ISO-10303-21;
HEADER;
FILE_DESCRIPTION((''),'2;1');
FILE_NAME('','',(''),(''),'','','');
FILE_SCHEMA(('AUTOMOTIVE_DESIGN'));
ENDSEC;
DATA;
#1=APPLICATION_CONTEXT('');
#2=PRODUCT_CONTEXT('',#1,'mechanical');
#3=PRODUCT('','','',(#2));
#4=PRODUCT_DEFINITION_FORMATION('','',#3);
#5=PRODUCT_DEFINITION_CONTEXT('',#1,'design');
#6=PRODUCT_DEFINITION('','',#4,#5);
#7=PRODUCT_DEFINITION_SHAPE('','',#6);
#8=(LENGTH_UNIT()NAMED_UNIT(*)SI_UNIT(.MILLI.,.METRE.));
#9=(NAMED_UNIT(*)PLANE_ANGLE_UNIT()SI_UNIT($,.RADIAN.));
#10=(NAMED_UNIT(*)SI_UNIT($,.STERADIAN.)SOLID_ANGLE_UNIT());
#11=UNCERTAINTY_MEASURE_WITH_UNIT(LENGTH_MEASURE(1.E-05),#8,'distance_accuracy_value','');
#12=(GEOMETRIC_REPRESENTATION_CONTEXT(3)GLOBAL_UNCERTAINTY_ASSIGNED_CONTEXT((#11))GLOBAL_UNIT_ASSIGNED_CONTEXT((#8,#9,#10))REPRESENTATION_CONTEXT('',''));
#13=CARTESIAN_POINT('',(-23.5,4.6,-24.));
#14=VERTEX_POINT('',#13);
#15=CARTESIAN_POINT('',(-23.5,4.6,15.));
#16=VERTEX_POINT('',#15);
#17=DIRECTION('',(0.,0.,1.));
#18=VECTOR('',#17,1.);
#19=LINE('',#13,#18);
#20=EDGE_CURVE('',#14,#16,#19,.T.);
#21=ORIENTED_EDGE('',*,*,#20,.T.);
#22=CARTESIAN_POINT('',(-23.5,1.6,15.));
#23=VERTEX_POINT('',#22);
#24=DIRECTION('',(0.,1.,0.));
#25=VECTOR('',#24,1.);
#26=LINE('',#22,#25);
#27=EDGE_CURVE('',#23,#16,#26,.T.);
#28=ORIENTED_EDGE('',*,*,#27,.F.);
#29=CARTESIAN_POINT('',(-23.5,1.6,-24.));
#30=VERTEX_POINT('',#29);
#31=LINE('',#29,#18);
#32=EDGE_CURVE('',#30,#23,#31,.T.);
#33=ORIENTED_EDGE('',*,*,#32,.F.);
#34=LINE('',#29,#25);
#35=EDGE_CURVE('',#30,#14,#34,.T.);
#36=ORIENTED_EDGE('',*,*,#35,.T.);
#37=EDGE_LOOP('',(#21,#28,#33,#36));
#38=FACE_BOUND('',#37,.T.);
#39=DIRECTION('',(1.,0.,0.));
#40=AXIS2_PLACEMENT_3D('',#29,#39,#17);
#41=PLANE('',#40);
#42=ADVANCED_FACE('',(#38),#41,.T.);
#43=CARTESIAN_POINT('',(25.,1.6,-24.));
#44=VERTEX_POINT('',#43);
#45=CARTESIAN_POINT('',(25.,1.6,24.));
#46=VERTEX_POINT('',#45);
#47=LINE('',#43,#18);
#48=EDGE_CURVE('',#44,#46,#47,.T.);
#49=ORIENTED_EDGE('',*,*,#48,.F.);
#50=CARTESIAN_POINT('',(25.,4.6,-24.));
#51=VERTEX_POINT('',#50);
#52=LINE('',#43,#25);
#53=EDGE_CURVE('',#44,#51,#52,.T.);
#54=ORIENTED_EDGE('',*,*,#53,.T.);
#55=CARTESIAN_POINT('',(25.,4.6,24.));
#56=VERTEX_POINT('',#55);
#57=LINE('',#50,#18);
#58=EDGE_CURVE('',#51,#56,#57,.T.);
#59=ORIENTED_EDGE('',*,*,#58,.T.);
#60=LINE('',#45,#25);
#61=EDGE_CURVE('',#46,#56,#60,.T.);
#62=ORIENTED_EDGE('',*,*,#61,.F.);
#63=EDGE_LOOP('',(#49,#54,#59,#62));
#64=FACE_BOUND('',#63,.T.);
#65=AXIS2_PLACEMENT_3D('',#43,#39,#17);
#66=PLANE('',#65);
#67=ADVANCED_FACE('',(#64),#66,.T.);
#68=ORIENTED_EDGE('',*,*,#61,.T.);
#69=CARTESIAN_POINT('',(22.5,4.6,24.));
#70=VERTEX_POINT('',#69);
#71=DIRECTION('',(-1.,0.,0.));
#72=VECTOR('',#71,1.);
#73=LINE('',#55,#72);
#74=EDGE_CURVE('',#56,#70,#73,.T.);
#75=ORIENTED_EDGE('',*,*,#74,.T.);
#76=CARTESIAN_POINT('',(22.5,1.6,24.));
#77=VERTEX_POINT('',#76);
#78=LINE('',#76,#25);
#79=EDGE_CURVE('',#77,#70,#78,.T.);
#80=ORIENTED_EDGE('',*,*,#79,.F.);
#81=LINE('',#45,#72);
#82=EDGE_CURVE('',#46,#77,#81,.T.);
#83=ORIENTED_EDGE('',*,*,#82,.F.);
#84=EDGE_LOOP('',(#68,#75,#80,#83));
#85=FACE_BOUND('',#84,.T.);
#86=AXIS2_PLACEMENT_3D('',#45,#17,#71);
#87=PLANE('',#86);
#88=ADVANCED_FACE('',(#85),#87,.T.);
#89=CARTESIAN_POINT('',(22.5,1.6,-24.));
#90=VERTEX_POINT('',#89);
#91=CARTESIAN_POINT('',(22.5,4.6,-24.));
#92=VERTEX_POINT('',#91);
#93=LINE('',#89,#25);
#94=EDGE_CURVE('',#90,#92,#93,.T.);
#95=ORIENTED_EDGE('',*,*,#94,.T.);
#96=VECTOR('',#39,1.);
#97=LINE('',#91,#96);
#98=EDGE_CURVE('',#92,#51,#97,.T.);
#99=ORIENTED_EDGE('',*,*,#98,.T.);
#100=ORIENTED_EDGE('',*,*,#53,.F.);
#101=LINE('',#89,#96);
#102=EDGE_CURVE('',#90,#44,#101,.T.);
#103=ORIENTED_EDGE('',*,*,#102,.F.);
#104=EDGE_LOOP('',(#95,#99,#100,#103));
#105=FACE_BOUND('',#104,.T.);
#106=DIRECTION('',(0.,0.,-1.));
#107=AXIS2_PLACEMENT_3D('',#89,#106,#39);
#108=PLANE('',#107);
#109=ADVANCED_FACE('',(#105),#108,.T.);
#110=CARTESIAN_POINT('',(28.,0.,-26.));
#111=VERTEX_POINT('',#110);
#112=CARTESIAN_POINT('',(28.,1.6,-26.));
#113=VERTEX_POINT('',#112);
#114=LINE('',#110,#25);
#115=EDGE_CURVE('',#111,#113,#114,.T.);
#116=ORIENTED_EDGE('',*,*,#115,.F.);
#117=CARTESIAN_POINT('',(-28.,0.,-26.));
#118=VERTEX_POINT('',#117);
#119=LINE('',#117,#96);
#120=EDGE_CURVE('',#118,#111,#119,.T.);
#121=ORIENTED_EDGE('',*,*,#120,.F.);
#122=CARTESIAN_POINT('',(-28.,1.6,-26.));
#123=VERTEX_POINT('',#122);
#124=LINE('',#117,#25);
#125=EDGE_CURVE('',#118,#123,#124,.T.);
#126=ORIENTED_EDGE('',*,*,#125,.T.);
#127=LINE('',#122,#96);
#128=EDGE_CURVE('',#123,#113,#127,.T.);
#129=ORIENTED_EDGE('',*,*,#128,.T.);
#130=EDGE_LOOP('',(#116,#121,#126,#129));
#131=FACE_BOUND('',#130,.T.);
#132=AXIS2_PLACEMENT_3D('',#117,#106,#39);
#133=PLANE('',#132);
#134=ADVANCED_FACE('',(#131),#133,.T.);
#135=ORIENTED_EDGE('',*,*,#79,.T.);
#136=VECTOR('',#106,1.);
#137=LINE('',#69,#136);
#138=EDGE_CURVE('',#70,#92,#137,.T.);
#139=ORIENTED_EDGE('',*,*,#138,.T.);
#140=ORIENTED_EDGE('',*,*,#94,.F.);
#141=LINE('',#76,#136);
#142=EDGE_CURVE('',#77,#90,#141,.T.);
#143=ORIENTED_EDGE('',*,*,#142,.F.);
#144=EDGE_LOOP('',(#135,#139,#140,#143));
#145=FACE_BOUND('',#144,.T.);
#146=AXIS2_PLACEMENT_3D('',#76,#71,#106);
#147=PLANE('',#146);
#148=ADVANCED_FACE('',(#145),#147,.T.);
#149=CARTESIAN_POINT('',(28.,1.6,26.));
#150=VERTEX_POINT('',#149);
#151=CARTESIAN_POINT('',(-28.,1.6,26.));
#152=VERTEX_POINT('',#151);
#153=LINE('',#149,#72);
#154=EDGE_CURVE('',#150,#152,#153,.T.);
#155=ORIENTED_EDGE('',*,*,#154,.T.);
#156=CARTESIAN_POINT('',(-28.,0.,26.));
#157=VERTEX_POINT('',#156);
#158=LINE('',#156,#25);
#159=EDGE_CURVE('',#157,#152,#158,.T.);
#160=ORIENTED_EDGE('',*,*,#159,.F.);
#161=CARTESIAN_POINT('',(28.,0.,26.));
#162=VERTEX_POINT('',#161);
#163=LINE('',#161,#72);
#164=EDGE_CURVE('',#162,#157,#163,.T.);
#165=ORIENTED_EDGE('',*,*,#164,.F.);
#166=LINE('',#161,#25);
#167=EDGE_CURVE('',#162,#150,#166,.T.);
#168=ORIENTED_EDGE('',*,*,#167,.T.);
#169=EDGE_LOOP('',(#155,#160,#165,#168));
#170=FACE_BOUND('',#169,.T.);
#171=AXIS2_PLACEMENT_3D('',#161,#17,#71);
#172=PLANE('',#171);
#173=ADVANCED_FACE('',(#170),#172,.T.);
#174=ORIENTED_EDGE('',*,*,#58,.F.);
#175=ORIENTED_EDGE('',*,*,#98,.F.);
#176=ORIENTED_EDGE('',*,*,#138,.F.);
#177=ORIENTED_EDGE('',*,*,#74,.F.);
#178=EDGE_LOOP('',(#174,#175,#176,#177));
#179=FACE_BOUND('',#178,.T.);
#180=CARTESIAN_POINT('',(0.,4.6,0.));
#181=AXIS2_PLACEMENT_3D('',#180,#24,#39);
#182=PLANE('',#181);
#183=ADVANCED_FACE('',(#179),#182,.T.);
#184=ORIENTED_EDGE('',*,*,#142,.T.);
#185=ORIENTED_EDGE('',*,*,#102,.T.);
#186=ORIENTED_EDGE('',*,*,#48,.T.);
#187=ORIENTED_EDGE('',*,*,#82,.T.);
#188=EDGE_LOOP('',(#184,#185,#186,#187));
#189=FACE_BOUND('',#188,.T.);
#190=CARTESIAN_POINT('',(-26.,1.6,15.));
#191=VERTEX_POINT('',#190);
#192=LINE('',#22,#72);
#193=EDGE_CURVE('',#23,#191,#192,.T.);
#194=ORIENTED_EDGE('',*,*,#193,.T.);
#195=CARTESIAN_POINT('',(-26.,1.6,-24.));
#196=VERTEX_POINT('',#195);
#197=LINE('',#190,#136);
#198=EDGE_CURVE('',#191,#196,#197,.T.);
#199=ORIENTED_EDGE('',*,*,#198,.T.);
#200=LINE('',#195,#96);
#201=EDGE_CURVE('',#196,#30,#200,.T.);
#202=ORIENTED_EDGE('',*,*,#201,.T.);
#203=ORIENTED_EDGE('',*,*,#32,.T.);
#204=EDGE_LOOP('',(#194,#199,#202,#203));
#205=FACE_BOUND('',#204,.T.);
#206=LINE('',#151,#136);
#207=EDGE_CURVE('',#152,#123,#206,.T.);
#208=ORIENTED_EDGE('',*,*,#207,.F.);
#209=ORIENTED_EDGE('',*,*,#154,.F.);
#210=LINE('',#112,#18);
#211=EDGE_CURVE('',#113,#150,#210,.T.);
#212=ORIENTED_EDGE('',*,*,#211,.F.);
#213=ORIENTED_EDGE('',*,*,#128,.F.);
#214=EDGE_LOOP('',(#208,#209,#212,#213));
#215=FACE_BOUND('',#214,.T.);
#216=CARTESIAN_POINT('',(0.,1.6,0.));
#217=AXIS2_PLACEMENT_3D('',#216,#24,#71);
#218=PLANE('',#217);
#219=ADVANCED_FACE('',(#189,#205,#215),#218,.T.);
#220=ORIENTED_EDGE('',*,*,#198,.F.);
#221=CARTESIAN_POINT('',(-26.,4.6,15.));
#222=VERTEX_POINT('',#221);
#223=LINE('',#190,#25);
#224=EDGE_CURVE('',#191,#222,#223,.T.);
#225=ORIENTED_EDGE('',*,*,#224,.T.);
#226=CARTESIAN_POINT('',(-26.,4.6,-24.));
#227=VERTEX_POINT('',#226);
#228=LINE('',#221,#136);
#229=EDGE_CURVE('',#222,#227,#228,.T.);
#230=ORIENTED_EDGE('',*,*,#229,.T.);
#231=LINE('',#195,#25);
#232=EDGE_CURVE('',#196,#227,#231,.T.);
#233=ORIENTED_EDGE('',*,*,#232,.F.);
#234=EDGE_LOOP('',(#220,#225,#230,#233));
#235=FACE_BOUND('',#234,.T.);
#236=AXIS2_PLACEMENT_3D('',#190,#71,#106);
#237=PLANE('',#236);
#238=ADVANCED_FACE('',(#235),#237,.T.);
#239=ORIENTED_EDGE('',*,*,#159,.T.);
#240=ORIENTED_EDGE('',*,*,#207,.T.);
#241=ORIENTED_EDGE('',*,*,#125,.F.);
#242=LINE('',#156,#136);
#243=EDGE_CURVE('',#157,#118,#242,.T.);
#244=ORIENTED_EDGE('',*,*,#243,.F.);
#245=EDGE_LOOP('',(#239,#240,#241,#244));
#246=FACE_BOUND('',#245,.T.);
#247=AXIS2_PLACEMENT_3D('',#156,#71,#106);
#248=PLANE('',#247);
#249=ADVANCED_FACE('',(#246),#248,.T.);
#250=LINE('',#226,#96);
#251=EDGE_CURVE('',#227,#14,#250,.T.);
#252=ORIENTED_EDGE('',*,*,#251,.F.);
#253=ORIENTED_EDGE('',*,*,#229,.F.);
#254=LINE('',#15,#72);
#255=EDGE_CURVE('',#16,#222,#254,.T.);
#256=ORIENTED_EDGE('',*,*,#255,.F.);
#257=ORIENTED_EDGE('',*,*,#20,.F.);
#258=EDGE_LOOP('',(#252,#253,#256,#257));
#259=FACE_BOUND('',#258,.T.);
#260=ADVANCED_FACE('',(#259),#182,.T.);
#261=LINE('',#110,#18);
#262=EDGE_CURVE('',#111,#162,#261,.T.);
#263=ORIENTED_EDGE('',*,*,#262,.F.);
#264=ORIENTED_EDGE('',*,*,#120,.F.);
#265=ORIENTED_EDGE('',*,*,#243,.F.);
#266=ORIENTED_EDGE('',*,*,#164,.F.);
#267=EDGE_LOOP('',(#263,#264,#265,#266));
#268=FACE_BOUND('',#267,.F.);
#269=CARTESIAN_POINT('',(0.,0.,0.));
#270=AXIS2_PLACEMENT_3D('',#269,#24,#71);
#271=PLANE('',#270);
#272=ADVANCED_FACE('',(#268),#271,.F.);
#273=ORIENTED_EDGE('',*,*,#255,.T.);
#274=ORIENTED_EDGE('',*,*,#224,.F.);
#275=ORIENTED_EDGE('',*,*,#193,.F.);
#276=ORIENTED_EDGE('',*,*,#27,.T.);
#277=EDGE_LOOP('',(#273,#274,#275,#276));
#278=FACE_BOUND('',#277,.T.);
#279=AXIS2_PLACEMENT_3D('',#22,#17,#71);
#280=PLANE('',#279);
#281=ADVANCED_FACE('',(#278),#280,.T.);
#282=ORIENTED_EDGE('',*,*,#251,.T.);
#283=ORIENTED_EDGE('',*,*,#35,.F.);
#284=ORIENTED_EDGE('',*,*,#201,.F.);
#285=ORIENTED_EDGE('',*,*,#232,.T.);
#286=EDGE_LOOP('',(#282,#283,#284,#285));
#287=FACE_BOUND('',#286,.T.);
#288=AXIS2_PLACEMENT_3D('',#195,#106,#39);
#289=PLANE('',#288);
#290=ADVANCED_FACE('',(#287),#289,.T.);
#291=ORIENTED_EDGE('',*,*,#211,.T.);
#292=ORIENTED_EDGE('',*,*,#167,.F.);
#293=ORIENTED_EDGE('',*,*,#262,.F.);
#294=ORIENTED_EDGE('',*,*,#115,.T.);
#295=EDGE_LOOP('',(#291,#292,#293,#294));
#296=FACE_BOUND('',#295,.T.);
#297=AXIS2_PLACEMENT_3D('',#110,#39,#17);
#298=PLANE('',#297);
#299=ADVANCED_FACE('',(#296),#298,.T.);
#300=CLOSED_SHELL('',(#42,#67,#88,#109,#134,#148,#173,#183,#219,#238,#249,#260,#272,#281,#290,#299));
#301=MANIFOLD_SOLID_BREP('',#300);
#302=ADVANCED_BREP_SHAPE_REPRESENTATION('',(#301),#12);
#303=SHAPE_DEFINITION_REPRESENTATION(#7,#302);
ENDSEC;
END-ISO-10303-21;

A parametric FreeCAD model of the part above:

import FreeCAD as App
import Part
import Sketcher

V = App.Vector
Q = App.Units.Quantity


def add_polygon(sketch, points):
    """Adds a closed chain of lines whose ends are joined by coincident constraints."""
    first, n = sketch.GeometryCount, len(points)
    for a, b in zip(points, points[1:] + points[:1]):
        sketch.addGeometry(Part.LineSegment(App.Vector(*a, 0), App.Vector(*b, 0)), False)
    for i in range(n):
        sketch.addConstraint(Sketcher.Constraint("Coincident", first + i, 2, first + (i + 1) % n, 1))

doc = App.newDocument("Part")
body = doc.addObject("PartDesign::Body", "Body")

# Sketch on XZ plane
sketch1 = doc.addObject("Sketcher::SketchObject", "Sketch")
body.addObject(sketch1)
sketch1.AttachmentSupport = (doc.XZ_Plane, [""])
sketch1.MapMode = "FlatFace"
add_polygon(sketch1, [(28, -26), (-28, -26), (-28, 26), (28, 26)])  # lines 0-3
sketch1.addConstraint([
    Sketcher.Constraint("Horizontal", 0),
    Sketcher.Constraint("Vertical", 1),
    Sketcher.Constraint("Horizontal", 2),
    Sketcher.Constraint("Vertical", 3),
    Sketcher.Constraint("Symmetric", 0, 2, 2, 2, -1, 1),
    Sketcher.Constraint("DistanceX", 0, 2, 0, 1, Q("56 mm")),
    Sketcher.Constraint("DistanceY", 1, 1, 1, 2, Q("52 mm")),
])
pad1 = doc.addObject("PartDesign::Pad", "Pad")
body.addObject(pad1)
pad1.Profile = sketch1
pad1.Length = 1.6
pad1.Reversed = True

# Sketch on XZ plane
sketch2 = doc.addObject("Sketcher::SketchObject", "Sketch001")
body.addObject(sketch2)
sketch2.AttachmentSupport = (doc.XZ_Plane, [""])
sketch2.MapMode = "FlatFace"
sketch2.AttachmentOffset = App.Placement(V(0, 0, -1.6), App.Rotation())
add_polygon(sketch2, [(-23.5, -24), (-26, -24), (-26, 15), (-23.5, 15)])  # lines 0-3
add_polygon(sketch2, [(25, -24), (22.5, -24), (22.5, 24), (25, 24)])  # lines 4-7
sketch2.addConstraint([
    Sketcher.Constraint("Horizontal", 0),
    Sketcher.Constraint("Vertical", 1),
    Sketcher.Constraint("Horizontal", 2),
    Sketcher.Constraint("Vertical", 3),
    Sketcher.Constraint("Horizontal", 4),
    Sketcher.Constraint("Vertical", 5),
    Sketcher.Constraint("Horizontal", 6),
    Sketcher.Constraint("Vertical", 7),
    Sketcher.Constraint("Horizontal", 3, 2, 4, 2),
    Sketcher.Constraint("Equal", 2, 4),
    Sketcher.Constraint("DistanceY", 1, 1, 1, 2, Q("39 mm")),
    Sketcher.Constraint("DistanceY", 5, 1, 5, 2, Q("48 mm")),
    Sketcher.Constraint("DistanceX", 0, 2, 0, 1, Q("2.5 mm")),
    Sketcher.Constraint("DistanceX", 3, 2, 4, 2, Q("46 mm")),
    Sketcher.Constraint("DistanceX", 0, 2, -1, 1, Q("26 mm")),
    Sketcher.Constraint("DistanceY", 0, 2, -1, 1, Q("24 mm")),
])
pad2 = doc.addObject("PartDesign::Pad", "Pad001")
body.addObject(pad2)
pad2.Profile = sketch2
pad2.Length = 3
pad2.Reversed = True

doc.recompute()
